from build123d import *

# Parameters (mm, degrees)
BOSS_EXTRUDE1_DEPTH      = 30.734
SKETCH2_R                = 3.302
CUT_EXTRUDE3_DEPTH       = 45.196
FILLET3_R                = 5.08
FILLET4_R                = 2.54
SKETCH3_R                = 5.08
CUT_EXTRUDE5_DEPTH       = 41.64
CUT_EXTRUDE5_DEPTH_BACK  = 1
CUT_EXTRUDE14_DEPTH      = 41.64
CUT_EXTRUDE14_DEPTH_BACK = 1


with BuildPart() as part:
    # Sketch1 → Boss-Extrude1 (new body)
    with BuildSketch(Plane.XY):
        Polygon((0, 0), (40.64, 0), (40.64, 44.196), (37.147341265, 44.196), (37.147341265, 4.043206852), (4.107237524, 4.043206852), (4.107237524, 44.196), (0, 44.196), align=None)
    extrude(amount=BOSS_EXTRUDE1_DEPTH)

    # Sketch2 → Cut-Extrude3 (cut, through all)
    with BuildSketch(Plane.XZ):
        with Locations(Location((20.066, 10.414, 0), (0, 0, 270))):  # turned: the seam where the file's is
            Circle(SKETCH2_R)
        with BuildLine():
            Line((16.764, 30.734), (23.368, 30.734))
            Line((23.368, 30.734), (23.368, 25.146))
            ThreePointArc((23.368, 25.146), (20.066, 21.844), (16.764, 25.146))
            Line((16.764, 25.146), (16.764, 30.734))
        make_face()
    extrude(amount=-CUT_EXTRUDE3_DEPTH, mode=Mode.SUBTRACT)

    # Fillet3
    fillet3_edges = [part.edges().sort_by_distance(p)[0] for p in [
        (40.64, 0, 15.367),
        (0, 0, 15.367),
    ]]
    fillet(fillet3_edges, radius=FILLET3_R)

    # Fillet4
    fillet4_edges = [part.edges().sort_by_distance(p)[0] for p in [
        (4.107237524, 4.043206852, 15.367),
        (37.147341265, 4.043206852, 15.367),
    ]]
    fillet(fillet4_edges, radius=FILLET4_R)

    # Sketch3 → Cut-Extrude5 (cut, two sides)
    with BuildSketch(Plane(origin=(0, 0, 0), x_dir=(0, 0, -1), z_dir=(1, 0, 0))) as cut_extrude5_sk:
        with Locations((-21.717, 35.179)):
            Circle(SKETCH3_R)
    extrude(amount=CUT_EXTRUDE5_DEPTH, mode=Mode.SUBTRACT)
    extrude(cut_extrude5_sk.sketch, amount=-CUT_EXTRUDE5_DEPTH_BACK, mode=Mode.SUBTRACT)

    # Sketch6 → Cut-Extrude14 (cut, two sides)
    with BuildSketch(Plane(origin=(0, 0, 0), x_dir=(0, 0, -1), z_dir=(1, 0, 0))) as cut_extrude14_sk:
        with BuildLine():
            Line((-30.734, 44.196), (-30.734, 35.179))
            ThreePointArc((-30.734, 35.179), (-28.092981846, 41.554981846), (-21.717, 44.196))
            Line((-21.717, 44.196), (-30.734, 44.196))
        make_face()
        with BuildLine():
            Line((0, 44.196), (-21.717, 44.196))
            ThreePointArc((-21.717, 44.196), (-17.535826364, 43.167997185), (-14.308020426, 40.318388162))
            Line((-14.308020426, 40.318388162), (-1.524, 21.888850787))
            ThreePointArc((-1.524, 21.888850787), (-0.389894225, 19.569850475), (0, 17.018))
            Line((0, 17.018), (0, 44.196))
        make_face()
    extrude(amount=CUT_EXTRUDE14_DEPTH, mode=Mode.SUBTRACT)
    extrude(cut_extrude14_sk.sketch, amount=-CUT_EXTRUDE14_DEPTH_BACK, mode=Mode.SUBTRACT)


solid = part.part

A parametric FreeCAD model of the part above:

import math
import FreeCAD as App
import Part
import Sketcher

V = App.Vector
Q = App.Units.Quantity


def edges_at(feature, points):
    """Names of the edges that pass closest to the given points."""
    edges = feature.Shape.Edges
    near = lambda p: min(range(len(edges)), key=lambda i: edges[i].distToShape(Part.Vertex(*p))[0])
    return sorted({f"Edge{near(p) + 1}" for p in points})

doc = App.newDocument("Part")
params = doc.addObject("Spreadsheet::Sheet", "Params")
for row, (alias, value) in enumerate([
    ("sketch1_width", "1.6 in"),
    ("sketch1_height", "1.74 in"),
    ("pad1_length", "1.21 in"),
    ("sketch2_diameter", "0.26 in"),
    ("sketch2_height", "0.22 in"),
    ("fillet_radius", "0.2 in"),
    ("fillet2_radius", "0.1 in"),
    ("sketch3_diameter", "0.4 in"),
    ("sketch4_radius", "0.355 in"),
    ("sketch4_width", "1.07 in"),
    ("sketch4_height", "0.855 in"),
], start=1):
    params.set(f"A{row}", alias)
    params.set(f"B{row}", "=" + value)
    params.setAlias(f"B{row}", alias)

body = doc.addObject("PartDesign::Body", "Body")

sketch1 = body.newObject("Sketcher::SketchObject", "Sketch")
sketch1.AttachmentSupport = (doc.getObject("XY_Plane"), [""])
sketch1.MapMode = "FlatFace"
sketch1.addGeometry([
    Part.LineSegment(V(0, 0, 0), V(40.6, 0, 0)),
    Part.LineSegment(V(40.6, 0, 0), V(40.6, 44.2, 0)),
    Part.LineSegment(V(40.6, 44.2, 0), V(37.1, 44.2, 0)),
    Part.LineSegment(V(37.1, 44.2, 0), V(37.1, 4, 0)),
    Part.LineSegment(V(37.1, 4, 0), V(4.1, 4, 0)),
    Part.LineSegment(V(4.1, 4, 0), V(4.1, 44.2, 0)),
    Part.LineSegment(V(4.1, 44.2, 0), V(0, 44.2, 0)),
    Part.LineSegment(V(0, 44.2, 0), V(0, 0, 0)),
], False)
sketch1.addConstraint([
    Sketcher.Constraint("Coincident", 0, 2, 1, 1),
    Sketcher.Constraint("Coincident", 1, 2, 2, 1),
    Sketcher.Constraint("Coincident", 2, 2, 3, 1),
    Sketcher.Constraint("Coincident", 3, 2, 4, 1),
    Sketcher.Constraint("Coincident", 4, 2, 5, 1),
    Sketcher.Constraint("Coincident", 5, 2, 6, 1),
    Sketcher.Constraint("Coincident", 6, 2, 7, 1),
    Sketcher.Constraint("Coincident", 7, 2, 0, 1),
    Sketcher.Constraint("Horizontal", 0),
    Sketcher.Constraint("Vertical", 1),
    Sketcher.Constraint("Horizontal", 2),
    Sketcher.Constraint("Vertical", 3),
    Sketcher.Constraint("Horizontal", 4),
    Sketcher.Constraint("Vertical", 5),
    Sketcher.Constraint("Horizontal", 6),
    Sketcher.Constraint("Vertical", 7),
    Sketcher.Constraint("Coincident", 7, 2, -1, 1),
    Sketcher.Constraint("Horizontal", 2, 2, 5, 2),
    Sketcher.Constraint("DistanceX", 0, 1, 0, 2, Q("1.6 in")),
    Sketcher.Constraint("DistanceY", 1, 1, 1, 2, Q("1.74 in")),
    Sketcher.Constraint("DistanceX", 2, 2, 2, 1, 3.492659),
    Sketcher.Constraint("DistanceX", 4, 2, 4, 1, 33.040104),
    Sketcher.Constraint("DistanceY", 3, 2, 3, 1, 40.152793),
])
sketch1.setExpression("Constraints[18]", "Params.sketch1_width")
sketch1.setExpression("Constraints[19]", "Params.sketch1_height")
pad1 = body.newObject("PartDesign::Pad", "Pad")
pad1.Profile = sketch1
pad1.setExpression("Length", "Params.pad1_length")

sketch2 = body.newObject("Sketcher::SketchObject", "Sketch001")
sketch2.AttachmentSupport = (doc.getObject("XZ_Plane"), [""])
sketch2.MapMode = "FlatFace"
sketch2.addGeometry([
    Part.Circle(V(20.1, 10.4, 0), V(0, 0, 1), 3.3),
    Part.LineSegment(V(23.4, 30.7, 0), V(16.8, 30.7, 0)),
    Part.LineSegment(V(16.8, 30.7, 0), V(16.8, 25.1, 0)),
    Part.ArcOfCircle(Part.Circle(V(20.1, 25.1, 0), V(0, 0, 1), 3.3), math.radians(180), math.radians(360)),
    Part.LineSegment(V(23.4, 25.1, 0), V(23.4, 30.7, 0)),
], False)
sketch2.addConstraint([
    Sketcher.Constraint("Coincident", 1, 2, 2, 1),
    Sketcher.Constraint("Tangent", 2, 2, 3, 1),
    Sketcher.Constraint("Tangent", 3, 2, 4, 1),
    Sketcher.Constraint("Coincident", 4, 2, 1, 1),
    Sketcher.Constraint("Horizontal", 1),
    Sketcher.Constraint("Vertical", 2),
    Sketcher.Constraint("Vertical", 4),
    Sketcher.Constraint("Equal", 0, 3),
    Sketcher.Constraint("Vertical", 0, 3, 3, 3),
    Sketcher.Constraint("Diameter", 0, Q("0.26 in")),
    Sketcher.Constraint("DistanceY", 2, 2, 2, 1, Q("0.22 in")),
    Sketcher.Constraint("DistanceY", 0, 3, 1, 2, Q("0.8 in")),
    Sketcher.Constraint("DistanceX", -1, 1, 0, 3, Q("0.79 in")),
    Sketcher.Constraint("DistanceY", -1, 1, 0, 3, Q("0.41 in")),
])
sketch2.setExpression("Constraints[9]", "Params.sketch2_diameter")
sketch2.setExpression("Constraints[10]", "Params.sketch2_height")
pocket1 = body.newObject("PartDesign::Pocket", "Pocket")
pocket1.Profile = sketch2
pocket1.Type = "ThroughAll"
doc.recompute()

fillet = body.newObject("PartDesign::Fillet", "Fillet")
fillet.Base = (pocket1, edges_at(pocket1, [(40.64, 0, 15.367), (0, 0, 15.367)]))
fillet.setExpression("Radius", "Params.fillet_radius")
doc.recompute()

fillet2 = body.newObject("PartDesign::Fillet", "Fillet001")
fillet2.Base = (fillet, edges_at(fillet, [(4.107, 4.043, 15.367), (37.147, 4.043, 15.367)]))
fillet2.setExpression("Radius", "Params.fillet2_radius")

sketch3 = body.newObject("Sketcher::SketchObject", "Sketch002")
sketch3.AttachmentSupport = (doc.getObject("YZ_Plane"), [""])
sketch3.MapMode = "FlatFace"
sketch3.addGeometry(Part.Circle(V(35, 22, 0), V(0, 0, 1), 5), False)
sketch3.addConstraint([
    Sketcher.Constraint("Diameter", 0, Q("0.4 in")),
    Sketcher.Constraint("DistanceX", -1, 1, 0, 3, Q("1.385 in")),
    Sketcher.Constraint("DistanceY", -1, 1, 0, 3, Q("0.855 in")),
])
sketch3.setExpression("Constraints[0]", "Params.sketch3_diameter")
pocket2 = body.newObject("PartDesign::Pocket", "Pocket001")
pocket2.Profile = sketch3
pocket2.Type = "ThroughAll"
pocket2.Midplane = True

sketch4 = body.newObject("Sketcher::SketchObject", "Sketch003")
sketch4.AttachmentSupport = (doc.getObject("YZ_Plane"), [""])
sketch4.MapMode = "FlatFace"
sketch4.addGeometry([
    Part.LineSegment(V(44, 31, 0), V(35, 31, 0)),
    Part.ArcOfCircle(Part.Circle(V(35, 22, 0), V(0, 0, 1), 9), math.radians(0), math.radians(90)),
    Part.LineSegment(V(44, 22, 0), V(44, 31, 0)),
    Part.LineSegment(V(44, 0, 0), V(44, 22, 0)),
    Part.ArcOfCircle(Part.Circle(V(35, 22, 0), V(0, 0, 1), 9), math.radians(-55), math.radians(0)),
    Part.LineSegment(V(40, 14, 0), V(22, 2, 0)),
    Part.ArcOfCircle(Part.Circle(V(17, 9, 0), V(0, 0, 1), 9), math.radians(-90), math.radians(-55)),
    Part.LineSegment(V(17, 0, 0), V(44, 0, 0)),
], False)
sketch4.addConstraint([
    Sketcher.Constraint("Tangent", 0, 2, 1, 2),
    Sketcher.Constraint("Tangent", 1, 1, 2, 1),
    Sketcher.Constraint("Coincident", 2, 2, 0, 1),
    Sketcher.Constraint("Tangent", 3, 2, 4, 2),
    Sketcher.Constraint("Tangent", 4, 1, 5, 1),
    Sketcher.Constraint("Tangent", 5, 2, 6, 2),
    Sketcher.Constraint("Tangent", 6, 1, 7, 1),
    Sketcher.Constraint("Coincident", 7, 2, 3, 1),
    Sketcher.Constraint("Horizontal", 0),
    Sketcher.Constraint("Vertical", 2),
    Sketcher.Constraint("Vertical", 3),
    Sketcher.Constraint("Horizontal", 7),
    Sketcher.Constraint("Coincident", 4, 3, 1, 3),
    Sketcher.Constraint("Equal", 1, 4),
    Sketcher.Constraint("PointOnObject", 6, 1, -1),
    Sketcher.Constraint("Radius", 1, Q("0.355 in")),
    Sketcher.Constraint("DistanceX", 7, 1, 7, 2, Q("1.07 in")),
    Sketcher.Constraint("DistanceY", 3, 1, 3, 2, Q("0.855 in")),
    Sketcher.Constraint("DistanceX", -1, 1, 6, 3, Q("0.67 in")),
    Sketcher.Constraint("DistanceY", -1, 1, 5, 2, Q("0.06 in")),
])
sketch4.setExpression("Constraints[15]", "Params.sketch4_radius")
sketch4.setExpression("Constraints[16]", "Params.sketch4_width")
sketch4.setExpression("Constraints[17]", "Params.sketch4_height")
pocket3 = body.newObject("PartDesign::Pocket", "Pocket002")
pocket3.Profile = sketch4
pocket3.Type = "ThroughAll"
pocket3.Midplane = True

doc.recompute()
